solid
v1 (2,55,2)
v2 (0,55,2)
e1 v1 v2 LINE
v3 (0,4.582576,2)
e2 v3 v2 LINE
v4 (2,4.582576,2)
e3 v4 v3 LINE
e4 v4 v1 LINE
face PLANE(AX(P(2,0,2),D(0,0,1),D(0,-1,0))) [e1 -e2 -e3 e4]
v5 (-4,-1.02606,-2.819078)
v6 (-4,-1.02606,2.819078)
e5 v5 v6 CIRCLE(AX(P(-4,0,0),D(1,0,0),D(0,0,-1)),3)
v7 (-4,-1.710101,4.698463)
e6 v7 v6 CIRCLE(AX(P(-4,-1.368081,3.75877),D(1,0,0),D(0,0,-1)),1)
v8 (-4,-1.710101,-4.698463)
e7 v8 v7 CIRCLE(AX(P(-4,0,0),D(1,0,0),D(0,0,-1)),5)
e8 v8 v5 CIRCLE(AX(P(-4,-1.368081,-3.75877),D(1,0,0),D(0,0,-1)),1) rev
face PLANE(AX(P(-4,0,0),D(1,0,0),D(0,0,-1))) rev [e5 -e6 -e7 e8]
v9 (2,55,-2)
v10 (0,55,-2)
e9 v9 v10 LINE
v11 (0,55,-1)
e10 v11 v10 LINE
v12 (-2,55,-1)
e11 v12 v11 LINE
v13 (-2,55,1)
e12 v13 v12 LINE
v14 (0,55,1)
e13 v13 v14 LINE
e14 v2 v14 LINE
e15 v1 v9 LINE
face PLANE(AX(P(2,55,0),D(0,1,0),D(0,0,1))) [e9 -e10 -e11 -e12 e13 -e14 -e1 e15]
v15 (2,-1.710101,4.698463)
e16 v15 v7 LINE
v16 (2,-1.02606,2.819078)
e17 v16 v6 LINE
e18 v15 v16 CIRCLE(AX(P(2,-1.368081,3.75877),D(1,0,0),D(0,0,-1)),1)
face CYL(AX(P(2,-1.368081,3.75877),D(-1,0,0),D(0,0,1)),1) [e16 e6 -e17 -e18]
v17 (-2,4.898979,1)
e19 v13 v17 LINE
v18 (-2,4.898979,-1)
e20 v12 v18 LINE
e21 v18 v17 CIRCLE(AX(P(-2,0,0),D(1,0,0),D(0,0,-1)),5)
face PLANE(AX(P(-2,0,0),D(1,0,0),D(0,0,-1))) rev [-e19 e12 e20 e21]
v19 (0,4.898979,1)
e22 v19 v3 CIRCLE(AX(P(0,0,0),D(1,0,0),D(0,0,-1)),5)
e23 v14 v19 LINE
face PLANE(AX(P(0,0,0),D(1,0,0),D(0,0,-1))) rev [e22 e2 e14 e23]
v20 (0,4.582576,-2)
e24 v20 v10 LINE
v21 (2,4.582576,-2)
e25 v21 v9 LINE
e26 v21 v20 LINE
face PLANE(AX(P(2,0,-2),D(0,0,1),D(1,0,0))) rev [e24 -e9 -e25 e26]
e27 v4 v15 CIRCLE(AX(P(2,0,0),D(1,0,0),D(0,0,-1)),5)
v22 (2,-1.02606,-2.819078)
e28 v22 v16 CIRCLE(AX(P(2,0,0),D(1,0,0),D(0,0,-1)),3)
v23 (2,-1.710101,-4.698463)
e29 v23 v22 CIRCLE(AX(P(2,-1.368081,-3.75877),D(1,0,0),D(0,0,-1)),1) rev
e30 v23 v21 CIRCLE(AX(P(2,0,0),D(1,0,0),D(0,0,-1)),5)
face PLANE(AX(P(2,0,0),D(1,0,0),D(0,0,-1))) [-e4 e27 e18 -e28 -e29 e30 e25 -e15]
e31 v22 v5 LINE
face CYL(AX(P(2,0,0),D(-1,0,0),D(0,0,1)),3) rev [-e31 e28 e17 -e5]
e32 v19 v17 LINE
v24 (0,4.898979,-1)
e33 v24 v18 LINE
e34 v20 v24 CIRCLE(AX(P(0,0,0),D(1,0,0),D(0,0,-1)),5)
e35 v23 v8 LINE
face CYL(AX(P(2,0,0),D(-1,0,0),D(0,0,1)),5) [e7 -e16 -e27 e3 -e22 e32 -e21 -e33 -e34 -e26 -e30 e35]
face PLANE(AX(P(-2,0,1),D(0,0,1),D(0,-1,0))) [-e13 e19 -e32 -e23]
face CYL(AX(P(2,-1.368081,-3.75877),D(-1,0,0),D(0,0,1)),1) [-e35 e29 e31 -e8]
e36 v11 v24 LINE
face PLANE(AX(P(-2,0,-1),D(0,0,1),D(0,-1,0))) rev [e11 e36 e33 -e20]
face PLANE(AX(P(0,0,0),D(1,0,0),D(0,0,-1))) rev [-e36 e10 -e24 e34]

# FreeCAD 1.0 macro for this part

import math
import FreeCAD as App
import Part
import Sketcher
Q = App.Units.Quantity

doc = App.newDocument("Part")
body = doc.addObject("PartDesign::Body", "Body")

# Sketch on YZ plane
sketch1 = body.newObject("Sketcher::SketchObject", "Sketch")
sketch1.AttachmentSupport = (doc.getObject("YZ_Plane"), [""])
sketch1.MapMode = "FlatFace"
sketch1.addGeometry([
    Part.ArcOfCircle(Part.Circle(App.Vector(0, 0, 0), App.Vector(0, 0, 1), 3), math.radians(-90), math.radians(90)),  # 0
    Part.ArcOfCircle(Part.Circle(App.Vector(0, 0, 0), App.Vector(0, 0, 1), 3), math.radians(-110), math.radians(-90)),  # 1
    Part.ArcOfCircle(Part.Circle(App.Vector(-1.368081, -3.75877, 0), App.Vector(0, 0, 1), 1), math.radians(70), math.radians(250)),  # 2
    Part.ArcOfCircle(Part.Circle(App.Vector(0, 0, 0), App.Vector(0, 0, 1), 5), math.radians(-110), math.radians(-90)),  # 3
    Part.ArcOfCircle(Part.Circle(App.Vector(0, 0, 0), App.Vector(0, 0, 1), 5), math.radians(-90), math.radians(90)),  # 4
    Part.ArcOfCircle(Part.Circle(App.Vector(0, 0, 0), App.Vector(0, 0, 1), 5), math.radians(90), math.radians(110)),  # 5
    Part.ArcOfCircle(Part.Circle(App.Vector(-1.368081, 3.75877, 0), App.Vector(0, 0, 1), 1), math.radians(110), math.radians(290)),  # 6
    Part.ArcOfCircle(Part.Circle(App.Vector(0, 0, 0), App.Vector(0, 0, 1), 3), math.radians(90), math.radians(110)),  # 7
], False)
sketch1.addConstraint([
    Sketcher.Constraint("Tangent", 0, 1, 1, 2),
    Sketcher.Constraint("Tangent", 1, 1, 2, 1),
    Sketcher.Constraint("Tangent", 2, 2, 3, 1),
    Sketcher.Constraint("Tangent", 3, 2, 4, 1),
    Sketcher.Constraint("Tangent", 4, 2, 5, 1),
    Sketcher.Constraint("Tangent", 5, 2, 6, 1),
    Sketcher.Constraint("Tangent", 6, 2, 7, 2),
    Sketcher.Constraint("Tangent", 7, 1, 0, 2),
    Sketcher.Constraint("Coincident", 0, 3, -1, 1),
    Sketcher.Constraint("Coincident", 3, 3, -1, 1),
    Sketcher.Constraint("Equal", 0, 1),
    Sketcher.Constraint("Equal", 3, 4),
    Sketcher.Constraint("Equal", 4, 5),
    Sketcher.Constraint("Equal", 2, 6),
    Sketcher.Constraint("PointOnObject", 0, 1, -2),
    Sketcher.Constraint("PointOnObject", 3, 2, -2),
    Sketcher.Constraint("PointOnObject", 4, 2, -2),
    Sketcher.Constraint("PointOnObject", 7, 1, -2),
    Sketcher.Constraint("Vertical", 2, 3, 6, 3),
    Sketcher.Constraint("Radius", 0, Q("3 mm")),
    Sketcher.Constraint("Radius", 2, Q("1 mm")),
    Sketcher.Constraint("DistanceX", 2, 2, -1, 1, Q("1.710101 mm")),
])
pad1 = body.newObject("PartDesign::Pad", "Pad")
pad1.Profile = sketch1
pad1.Type = "TwoLengths"
pad1.Length = 2
pad1.Length2 = 4

# Sketch on YZ plane
sketch2 = body.newObject("Sketcher::SketchObject", "Sketch001")
sketch2.AttachmentSupport = (doc.getObject("YZ_Plane"), [""])
sketch2.MapMode = "FlatFace"
sketch2.addGeometry([
    Part.LineSegment(App.Vector(3, 2, 0), App.Vector(3, -2, 0)),
    Part.LineSegment(App.Vector(3, -2, 0), App.Vector(55, -2, 0)),
    Part.LineSegment(App.Vector(55, -2, 0), App.Vector(55, 2, 0)),
    Part.LineSegment(App.Vector(55, 2, 0), App.Vector(3, 2, 0)),
], False)
sketch2.addConstraint([
    Sketcher.Constraint("Coincident", 0, 2, 1, 1),
    Sketcher.Constraint("Coincident", 1, 2, 2, 1),
    Sketcher.Constraint("Coincident", 2, 2, 3, 1),
    Sketcher.Constraint("Coincident", 3, 2, 0, 1),
    Sketcher.Constraint("Vertical", 0),
    Sketcher.Constraint("Horizontal", 1),
    Sketcher.Constraint("Vertical", 2),
    Sketcher.Constraint("Horizontal", 3),
    Sketcher.Constraint("DistanceX", 1, 1, 1, 2, Q("52 mm")),
    Sketcher.Constraint("DistanceY", 0, 2, 0, 1, Q("4 mm")),
    Sketcher.Constraint("DistanceX", -1, 1, 0, 2, Q("3 mm")),
    Sketcher.Constraint("DistanceY", 0, 2, -1, 1, Q("2 mm")),
])
pad2 = body.newObject("PartDesign::Pad", "Pad001")
pad2.Profile = sketch2
pad2.Length = 2

# Sketch on YZ plane
sketch3 = body.newObject("Sketcher::SketchObject", "Sketch002")
sketch3.AttachmentSupport = (doc.getObject("YZ_Plane"), [""])
sketch3.MapMode = "FlatFace"
sketch3.addGeometry([
    Part.LineSegment(App.Vector(55, -1, 0), App.Vector(55, 1, 0)),
    Part.LineSegment(App.Vector(55, 1, 0), App.Vector(3, 1, 0)),
    Part.LineSegment(App.Vector(3, 1, 0), App.Vector(3, -1, 0)),
    Part.LineSegment(App.Vector(3, -1, 0), App.Vector(55, -1, 0)),
], False)
sketch3.addConstraint([
    Sketcher.Constraint("Coincident", 0, 2, 1, 1),
    Sketcher.Constraint("Coincident", 1, 2, 2, 1),
    Sketcher.Constraint("Coincident", 2, 2, 3, 1),
    Sketcher.Constraint("Coincident", 3, 2, 0, 1),
    Sketcher.Constraint("Vertical", 0),
    Sketcher.Constraint("Horizontal", 1),
    Sketcher.Constraint("Vertical", 2),
    Sketcher.Constraint("Horizontal", 3),
    Sketcher.Constraint("DistanceX", 1, 2, 1, 1, Q("52 mm")),
    Sketcher.Constraint("DistanceY", 0, 1, 0, 2, Q("2 mm")),
    Sketcher.Constraint("DistanceX", -1, 1, 0, 2, Q("55 mm")),
    Sketcher.Constraint("DistanceY", -1, 1, 0, 2, Q("1 mm")),
])
pad3 = body.newObject("PartDesign::Pad", "Pad002")
pad3.Profile = sketch3
pad3.Length = 2
pad3.Reversed = True

doc.recompute()
